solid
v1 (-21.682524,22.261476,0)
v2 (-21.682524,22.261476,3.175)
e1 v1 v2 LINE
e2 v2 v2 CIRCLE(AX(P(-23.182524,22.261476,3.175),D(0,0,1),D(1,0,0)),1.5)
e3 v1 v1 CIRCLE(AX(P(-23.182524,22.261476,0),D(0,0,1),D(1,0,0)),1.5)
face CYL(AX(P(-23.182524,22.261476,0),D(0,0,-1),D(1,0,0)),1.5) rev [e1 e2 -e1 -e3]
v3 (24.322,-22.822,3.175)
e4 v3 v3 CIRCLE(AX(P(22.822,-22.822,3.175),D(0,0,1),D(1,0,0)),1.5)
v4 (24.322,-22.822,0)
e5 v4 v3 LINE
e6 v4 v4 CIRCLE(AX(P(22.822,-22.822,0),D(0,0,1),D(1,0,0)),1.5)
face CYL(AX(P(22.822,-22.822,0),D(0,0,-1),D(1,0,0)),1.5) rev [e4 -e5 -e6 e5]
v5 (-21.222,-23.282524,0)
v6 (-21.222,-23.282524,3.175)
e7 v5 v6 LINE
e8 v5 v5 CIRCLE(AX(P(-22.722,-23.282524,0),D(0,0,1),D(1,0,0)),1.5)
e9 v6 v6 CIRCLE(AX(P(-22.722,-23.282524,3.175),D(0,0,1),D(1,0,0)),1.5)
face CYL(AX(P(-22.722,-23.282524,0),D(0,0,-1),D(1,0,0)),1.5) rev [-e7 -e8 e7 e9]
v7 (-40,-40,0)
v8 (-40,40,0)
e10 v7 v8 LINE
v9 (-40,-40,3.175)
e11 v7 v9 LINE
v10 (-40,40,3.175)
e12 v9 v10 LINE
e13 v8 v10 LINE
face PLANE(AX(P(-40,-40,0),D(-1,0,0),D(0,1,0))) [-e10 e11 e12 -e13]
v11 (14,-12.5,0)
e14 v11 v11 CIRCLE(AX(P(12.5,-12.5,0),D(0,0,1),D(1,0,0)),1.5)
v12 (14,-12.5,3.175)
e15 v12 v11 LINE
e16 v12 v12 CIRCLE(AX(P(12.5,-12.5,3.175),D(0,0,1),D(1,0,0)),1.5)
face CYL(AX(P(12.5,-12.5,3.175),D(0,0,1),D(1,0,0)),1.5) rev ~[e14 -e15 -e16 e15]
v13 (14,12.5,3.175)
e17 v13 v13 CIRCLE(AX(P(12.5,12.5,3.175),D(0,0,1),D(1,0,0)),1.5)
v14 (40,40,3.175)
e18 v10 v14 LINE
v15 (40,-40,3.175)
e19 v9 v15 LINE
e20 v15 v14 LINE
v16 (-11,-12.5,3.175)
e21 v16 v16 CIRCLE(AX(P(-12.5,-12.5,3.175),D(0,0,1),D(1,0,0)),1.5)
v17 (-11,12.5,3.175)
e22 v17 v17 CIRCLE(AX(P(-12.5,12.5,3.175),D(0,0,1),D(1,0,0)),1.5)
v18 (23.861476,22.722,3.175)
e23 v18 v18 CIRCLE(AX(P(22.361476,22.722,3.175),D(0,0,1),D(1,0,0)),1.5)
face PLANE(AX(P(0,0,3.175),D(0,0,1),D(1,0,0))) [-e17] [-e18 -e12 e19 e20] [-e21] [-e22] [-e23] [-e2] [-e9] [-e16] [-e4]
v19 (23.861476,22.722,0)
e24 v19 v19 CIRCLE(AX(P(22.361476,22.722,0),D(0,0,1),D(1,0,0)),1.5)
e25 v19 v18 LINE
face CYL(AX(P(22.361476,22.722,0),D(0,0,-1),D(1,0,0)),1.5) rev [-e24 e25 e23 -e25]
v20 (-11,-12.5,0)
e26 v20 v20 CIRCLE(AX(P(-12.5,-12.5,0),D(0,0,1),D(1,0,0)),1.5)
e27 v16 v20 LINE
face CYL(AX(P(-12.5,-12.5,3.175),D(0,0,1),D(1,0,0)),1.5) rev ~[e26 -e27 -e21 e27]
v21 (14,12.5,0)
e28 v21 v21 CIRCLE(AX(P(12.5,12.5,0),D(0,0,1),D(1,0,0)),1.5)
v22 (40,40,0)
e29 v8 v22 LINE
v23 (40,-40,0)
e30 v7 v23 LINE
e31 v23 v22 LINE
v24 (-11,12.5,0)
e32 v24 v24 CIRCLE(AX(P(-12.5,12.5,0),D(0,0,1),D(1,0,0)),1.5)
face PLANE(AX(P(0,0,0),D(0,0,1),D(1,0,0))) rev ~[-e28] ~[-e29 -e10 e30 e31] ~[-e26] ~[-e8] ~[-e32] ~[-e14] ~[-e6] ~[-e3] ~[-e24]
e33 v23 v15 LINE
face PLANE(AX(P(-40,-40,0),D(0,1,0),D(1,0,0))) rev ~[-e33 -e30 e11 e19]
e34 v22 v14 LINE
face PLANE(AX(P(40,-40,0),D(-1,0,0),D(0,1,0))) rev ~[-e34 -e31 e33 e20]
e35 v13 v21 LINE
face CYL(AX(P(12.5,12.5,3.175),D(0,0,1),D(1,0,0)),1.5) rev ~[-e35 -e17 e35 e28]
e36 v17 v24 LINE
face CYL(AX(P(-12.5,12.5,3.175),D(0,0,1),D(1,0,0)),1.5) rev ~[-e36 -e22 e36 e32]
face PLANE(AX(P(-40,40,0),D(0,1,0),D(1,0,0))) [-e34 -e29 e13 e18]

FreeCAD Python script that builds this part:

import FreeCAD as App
import Part
import Sketcher

V = App.Vector


def add_polygon(sketch, points):
    """Adds a closed chain of lines whose ends are joined by coincident constraints."""
    first, n = sketch.GeometryCount, len(points)
    for a, b in zip(points, points[1:] + points[:1]):
        sketch.addGeometry(Part.LineSegment(App.Vector(*a, 0), App.Vector(*b, 0)), False)
    for i in range(n):
        sketch.addConstraint(Sketcher.Constraint("Coincident", first + i, 2, first + (i + 1) % n, 1))

doc = App.newDocument("Part")
body = doc.addObject("PartDesign::Body", "Body")

# Sketch on XY plane
sketch1 = doc.addObject("Sketcher::SketchObject", "Sketch")
body.addObject(sketch1)
sketch1.AttachmentSupport = (doc.XY_Plane, [""])
sketch1.MapMode = "FlatFace"
add_polygon(sketch1, [(-40, 40), (-40, -40), (40, -40), (40, 40)])  # lines 0-3
sketch1.addGeometry(Part.Circle(V(-22.7, -23.3, 0), V(0, 0, 1), 1.5), False)  # 4
sketch1.addGeometry(Part.Circle(V(22.8, -22.8, 0), V(0, 0, 1), 1.5), False)  # 5
sketch1.addGeometry(Part.Circle(V(-23.2, 22.3, 0), V(0, 0, 1), 1.5), False)  # 6
sketch1.addGeometry(Part.Circle(V(22.4, 22.7, 0), V(0, 0, 1), 1.5), False)  # 7
sketch1.addConstraint([
    Sketcher.Constraint("Vertical", 0),
    Sketcher.Constraint("Horizontal", 1),
    Sketcher.Constraint("Vertical", 2),
    Sketcher.Constraint("Horizontal", 3),
    Sketcher.Constraint("Equal", 4, 5),
    Sketcher.Constraint("Equal", 5, 6),
    Sketcher.Constraint("Equal", 6, 7),
    Sketcher.Constraint("Symmetric", 0, 2, 2, 2, -1, 1),
    Sketcher.Constraint("Equal", 3, 0),
    Sketcher.Constraint("Diameter", 4, 3.0),
    Sketcher.Constraint("DistanceX", 1, 1, 1, 2, 80.0),
    Sketcher.Constraint("DistanceX", 4, 3, -1, 1, 22.722),
    Sketcher.Constraint("DistanceX", -1, 1, 5, 3, 22.822),
    Sketcher.Constraint("DistanceY", 5, 3, -1, 1, 22.822),
    Sketcher.Constraint("DistanceY", -1, 1, 7, 3, 22.722),
    Sketcher.Constraint("DistanceY", 4, 3, 6, 3, 45.544),
    Sketcher.Constraint("DistanceX", 6, 3, 7, 3, 45.544),
    Sketcher.Constraint("DistanceY", 4, 3, -1, 1, 23.282524),
    Sketcher.Constraint("DistanceX", 6, 3, -1, 1, 23.182524),
])
pad1 = doc.addObject("PartDesign::Pad", "Pad")
body.addObject(pad1)
pad1.Profile = sketch1
pad1.Length = 3.175

# Sketch on XY plane
sketch2 = doc.addObject("Sketcher::SketchObject", "Sketch001")
body.addObject(sketch2)
sketch2.AttachmentSupport = (doc.XY_Plane, [""])
sketch2.MapMode = "FlatFace"
sketch2.AttachmentOffset = App.Placement(V(0, 0, 3.175), App.Rotation())
sketch2.addGeometry([
    Part.Circle(V(-12.5, 12.5, 0), V(0, 0, 1), 1.5),
    Part.Circle(V(12.5, 12.5, 0), V(0, 0, 1), 1.5),
    Part.Circle(V(12.5, -12.5, 0), V(0, 0, 1), 1.5),
    Part.Circle(V(-12.5, -12.5, 0), V(0, 0, 1), 1.5),
], False)
sketch2.addConstraint([
    Sketcher.Constraint("Equal", 0, 1),
    Sketcher.Constraint("Equal", 1, 2),
    Sketcher.Constraint("Equal", 2, 3),
    Sketcher.Constraint("Symmetric", 0, 3, 2, 3, -1, 1),
    Sketcher.Constraint("Symmetric", 1, 3, 3, 3, -1, 1),
    Sketcher.Constraint("Symmetric", 0, 3, 1, 3, -2),
    Sketcher.Constraint("Diameter", 0, 3.0),
    Sketcher.Constraint("DistanceX", 0, 3, 1, 3, 25.0),
    Sketcher.Constraint("DistanceY", 2, 3, 1, 3, 25.0),
])
pocket1 = doc.addObject("PartDesign::Pocket", "Pocket")
body.addObject(pocket1)
pocket1.Profile = sketch2
pocket1.Length = 25

doc.recompute()
